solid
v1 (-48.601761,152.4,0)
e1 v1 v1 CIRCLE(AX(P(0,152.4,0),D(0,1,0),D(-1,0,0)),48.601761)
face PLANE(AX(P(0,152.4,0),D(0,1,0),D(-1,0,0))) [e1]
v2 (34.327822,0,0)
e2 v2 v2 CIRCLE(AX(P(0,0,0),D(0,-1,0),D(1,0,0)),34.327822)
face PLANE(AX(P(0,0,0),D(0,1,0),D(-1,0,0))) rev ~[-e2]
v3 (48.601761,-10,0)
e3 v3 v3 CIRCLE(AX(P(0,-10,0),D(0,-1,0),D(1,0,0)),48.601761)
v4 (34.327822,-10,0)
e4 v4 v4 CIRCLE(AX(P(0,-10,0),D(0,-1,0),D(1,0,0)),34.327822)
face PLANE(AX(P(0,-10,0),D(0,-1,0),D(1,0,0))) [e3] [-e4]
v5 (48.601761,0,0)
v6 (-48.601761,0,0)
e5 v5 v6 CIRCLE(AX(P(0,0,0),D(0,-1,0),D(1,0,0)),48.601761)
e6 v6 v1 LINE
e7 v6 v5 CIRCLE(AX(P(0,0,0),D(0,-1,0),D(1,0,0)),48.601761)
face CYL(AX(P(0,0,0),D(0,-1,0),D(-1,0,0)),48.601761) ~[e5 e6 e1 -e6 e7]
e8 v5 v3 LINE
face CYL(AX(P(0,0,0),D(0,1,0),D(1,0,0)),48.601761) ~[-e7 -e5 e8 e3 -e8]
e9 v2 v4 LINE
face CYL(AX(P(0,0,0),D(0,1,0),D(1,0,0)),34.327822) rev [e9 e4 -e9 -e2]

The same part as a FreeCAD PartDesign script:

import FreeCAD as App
import Part
import Sketcher
from FreeCAD import Vector
Q = App.Units.Quantity

doc = App.newDocument("Part")
params = doc.addObject("Spreadsheet::Sheet", "Params")
for row, (alias, value) in enumerate([
    ("pad1_length", "10 mm"),
    ("pad2_length", "152.4 mm"),
], start=1):
    params.set(f"A{row}", alias)
    params.set(f"B{row}", "=" + value)
    params.setAlias(f"B{row}", alias)

body = doc.addObject("PartDesign::Body", "Body")

# Sketch on XZ plane
sketch1 = body.newObject("Sketcher::SketchObject", "Sketch")
sketch1.AttachmentSupport = (doc.getObject("XZ_Plane"), [""])
sketch1.MapMode = "FlatFace"
sketch1.addGeometry([
    Part.Circle(Vector(0, 0, 0), Vector(0, 0, 1), 49),
    Part.Circle(Vector(0, 0, 0), Vector(0, 0, 1), 34),
], False)
sketch1.addConstraint([
    Sketcher.Constraint("Coincident", 0, 3, -1, 1),
    Sketcher.Constraint("Coincident", 1, 3, -1, 1),
    Sketcher.Constraint("Diameter", 0, Q("97.203522 mm")),
    Sketcher.Constraint("Diameter", 1, Q("68.655644 mm")),
])
pad1 = body.newObject("PartDesign::Pad", "Pad")
pad1.Profile = sketch1
pad1.setExpression("Length", "Params.pad1_length")

# Sketch on XZ plane
sketch2 = body.newObject("Sketcher::SketchObject", "Sketch001")
sketch2.AttachmentSupport = (doc.getObject("XZ_Plane"), [""])
sketch2.MapMode = "FlatFace"
sketch2.addGeometry(Part.Circle(Vector(0, 0, 0), Vector(0, 0, 1), 49), False)
sketch2.addConstraint([
    Sketcher.Constraint("Coincident", 0, 3, -1, 1),
    Sketcher.Constraint("Diameter", 0, Q("97.203522 mm")),
])
pad2 = body.newObject("PartDesign::Pad", "Pad001")
pad2.Profile = sketch2
pad2.setExpression("Length", "Params.pad2_length")
pad2.Reversed = True

doc.recompute()
